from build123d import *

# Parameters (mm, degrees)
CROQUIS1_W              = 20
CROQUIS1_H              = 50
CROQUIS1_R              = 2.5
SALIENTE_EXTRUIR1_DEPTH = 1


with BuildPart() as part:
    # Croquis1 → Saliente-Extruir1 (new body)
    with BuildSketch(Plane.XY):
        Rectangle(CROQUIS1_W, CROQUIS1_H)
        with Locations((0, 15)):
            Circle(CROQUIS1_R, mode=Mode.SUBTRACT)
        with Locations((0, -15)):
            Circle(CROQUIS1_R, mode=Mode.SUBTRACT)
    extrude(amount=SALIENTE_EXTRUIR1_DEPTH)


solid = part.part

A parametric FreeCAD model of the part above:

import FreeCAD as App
import Part
import Sketcher
from FreeCAD import Vector


def add_polygon(sketch, points):
    """Adds a closed chain of lines whose ends are joined by coincident constraints."""
    first, n = sketch.GeometryCount, len(points)
    for a, b in zip(points, points[1:] + points[:1]):
        sketch.addGeometry(Part.LineSegment(App.Vector(*a, 0), App.Vector(*b, 0)), False)
    for i in range(n):
        sketch.addConstraint(Sketcher.Constraint("Coincident", first + i, 2, first + (i + 1) % n, 1))

doc = App.newDocument("Part")
body = doc.addObject("PartDesign::Body", "Body")

# Sketch on XY plane
sketch1 = body.newObject("Sketcher::SketchObject", "Sketch")
sketch1.AttachmentSupport = (doc.getObject("XY_Plane"), [""])
sketch1.MapMode = "FlatFace"
add_polygon(sketch1, [(-10, 25), (-10, -25), (10, -25), (10, 25)])  # lines 0-3
sketch1.addGeometry(Part.Circle(Vector(0, -15, 0), Vector(0, 0, 1), 2.5), False)  # 4
sketch1.addGeometry(Part.Circle(Vector(0, 15, 0), Vector(0, 0, 1), 2.5), False)  # 5
sketch1.addConstraint([
    Sketcher.Constraint("Vertical", 0),
    Sketcher.Constraint("Horizontal", 1),
    Sketcher.Constraint("Vertical", 2),
    Sketcher.Constraint("Horizontal", 3),
    Sketcher.Constraint("Equal", 4, 5),
    Sketcher.Constraint("Symmetric", 4, 3, 5, 3, -1, 1),
    Sketcher.Constraint("Symmetric", 0, 2, 2, 2, -1, 1),
    Sketcher.Constraint("PointOnObject", 4, 3, -2),
    Sketcher.Constraint("Diameter", 4, 5.0),
    Sketcher.Constraint("DistanceX", 1, 1, 1, 2, 20.0),
    Sketcher.Constraint("DistanceY", 0, 2, 0, 1, 50.0),
    Sketcher.Constraint("DistanceY", 4, 3, -1, 1, 15.0),
])
pad1 = body.newObject("PartDesign::Pad", "Pad")
pad1.Profile = sketch1
pad1.Length = 1

doc.recompute()
